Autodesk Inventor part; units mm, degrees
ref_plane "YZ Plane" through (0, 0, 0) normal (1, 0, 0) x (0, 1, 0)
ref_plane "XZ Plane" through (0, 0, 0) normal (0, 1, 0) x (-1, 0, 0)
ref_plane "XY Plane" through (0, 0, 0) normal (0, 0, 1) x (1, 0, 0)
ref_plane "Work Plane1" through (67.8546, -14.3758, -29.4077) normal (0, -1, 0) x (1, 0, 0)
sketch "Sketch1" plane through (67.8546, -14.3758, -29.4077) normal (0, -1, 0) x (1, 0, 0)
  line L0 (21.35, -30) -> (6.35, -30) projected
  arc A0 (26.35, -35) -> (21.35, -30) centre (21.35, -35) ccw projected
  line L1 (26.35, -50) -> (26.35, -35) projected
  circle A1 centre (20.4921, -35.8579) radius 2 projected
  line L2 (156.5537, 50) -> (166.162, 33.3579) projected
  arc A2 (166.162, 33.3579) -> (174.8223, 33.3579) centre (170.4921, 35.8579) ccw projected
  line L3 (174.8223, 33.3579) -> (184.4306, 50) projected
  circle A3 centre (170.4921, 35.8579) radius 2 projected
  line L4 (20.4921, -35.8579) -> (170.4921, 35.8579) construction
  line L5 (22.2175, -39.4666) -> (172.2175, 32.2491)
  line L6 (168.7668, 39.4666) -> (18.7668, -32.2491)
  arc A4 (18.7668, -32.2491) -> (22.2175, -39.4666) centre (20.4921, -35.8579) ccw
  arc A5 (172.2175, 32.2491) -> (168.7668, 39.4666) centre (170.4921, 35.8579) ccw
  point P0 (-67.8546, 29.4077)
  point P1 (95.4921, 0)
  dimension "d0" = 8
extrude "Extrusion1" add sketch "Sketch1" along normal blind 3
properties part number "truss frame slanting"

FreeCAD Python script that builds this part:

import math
import FreeCAD as App
import Part
import Sketcher

doc = App.newDocument("Part")
body = doc.addObject("PartDesign::Body", "Body")

sketch1 = doc.addObject("Sketcher::SketchObject", "Sketch")
body.addObject(sketch1)
sketch1.AttachmentSupport = (doc.XZ_Plane, [""])
sketch1.MapMode = "FlatFace"
sketch1.AttachmentOffset = App.Placement(App.Vector(0, 0, 14.3758), App.Rotation())
sketch1.addGeometry(Part.LineSegment(App.Vector(90.1, -68.9, 0), App.Vector(240.1, 2.8, 0)), False)
sketch1.addGeometry(Part.ArcOfCircle(Part.Circle(App.Vector(238.3, 6.5, 0), App.Vector(0, 0, 1), 4), math.radians(-64), math.radians(116)), False)
sketch1.addGeometry(Part.LineSegment(App.Vector(236.6, 10.1, 0), App.Vector(86.6, -61.7, 0)), False)
sketch1.addGeometry(Part.ArcOfCircle(Part.Circle(App.Vector(88.3, -65.3, 0), App.Vector(0, 0, 1), 4), math.radians(116), math.radians(296)), False)
sketch1.addGeometry(Part.Circle(App.Vector(88.3, -65.3, 0), App.Vector(0, 0, 1), 2), False)
sketch1.addGeometry(Part.Circle(App.Vector(238.3, 6.5, 0), App.Vector(0, 0, 1), 2), False)
sketch1.addConstraint(Sketcher.Constraint("Tangent", 0, 2, 1, 1))
sketch1.addConstraint(Sketcher.Constraint("Tangent", 1, 2, 2, 1))
sketch1.addConstraint(Sketcher.Constraint("Tangent", 2, 2, 3, 1))
sketch1.addConstraint(Sketcher.Constraint("Tangent", 3, 2, 0, 1))
sketch1.addConstraint(Sketcher.Constraint("Coincident", 4, 3, 3, 3))
sketch1.addConstraint(Sketcher.Constraint("Coincident", 5, 3, 1, 3))
sketch1.addConstraint(Sketcher.Constraint("Equal", 1, 3))
sketch1.addConstraint(Sketcher.Constraint("Equal", 4, 5))
sketch1.addConstraint(Sketcher.Constraint("Radius", 1, 4.0))
sketch1.addConstraint(Sketcher.Constraint("Diameter", 4, 4.0))
sketch1.addConstraint(Sketcher.Constraint("DistanceX", 3, 3, 1, 3, 150.0))
sketch1.addConstraint(Sketcher.Constraint("DistanceX", -1, 1, 0, 2, 240.072))
sketch1.addConstraint(Sketcher.Constraint("DistanceY", -1, 1, 1, 2, 10.059))
sketch1.addConstraint(Sketcher.Constraint("DistanceY", 3, 3, 0, 2, 68.107))
pad1 = doc.addObject("PartDesign::Pad", "Pad")
body.addObject(pad1)
pad1.Profile = sketch1
pad1.Length = 3

doc.recompute()
